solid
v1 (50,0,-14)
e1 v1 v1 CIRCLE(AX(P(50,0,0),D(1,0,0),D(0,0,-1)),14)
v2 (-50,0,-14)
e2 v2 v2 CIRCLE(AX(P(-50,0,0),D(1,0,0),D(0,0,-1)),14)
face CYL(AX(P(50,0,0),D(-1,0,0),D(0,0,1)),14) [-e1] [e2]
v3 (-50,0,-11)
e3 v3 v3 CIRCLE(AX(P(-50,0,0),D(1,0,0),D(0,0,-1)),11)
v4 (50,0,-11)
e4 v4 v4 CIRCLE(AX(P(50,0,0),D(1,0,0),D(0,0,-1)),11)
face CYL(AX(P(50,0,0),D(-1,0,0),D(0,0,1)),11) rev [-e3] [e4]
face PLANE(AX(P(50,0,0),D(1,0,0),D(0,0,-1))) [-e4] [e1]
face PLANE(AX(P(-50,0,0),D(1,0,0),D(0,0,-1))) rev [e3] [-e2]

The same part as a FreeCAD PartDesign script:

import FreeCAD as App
import Part
import Sketcher

doc = App.newDocument("Part")
params = doc.addObject("Spreadsheet::Sheet", "Params")
for row, (alias, value) in enumerate([
    ("sketch1_diameter", "28 mm"),
    ("sketch1_diameter2", "22 mm"),
    ("pad1_length", "100 mm"),
], start=1):
    params.set(f"A{row}", alias)
    params.set(f"B{row}", "=" + value)
    params.setAlias(f"B{row}", alias)

body = doc.addObject("PartDesign::Body", "Body")

# Sketch on YZ plane
sketch1 = doc.addObject("Sketcher::SketchObject", "Sketch")
body.addObject(sketch1)
sketch1.AttachmentSupport = (doc.YZ_Plane, [""])
sketch1.MapMode = "FlatFace"
sketch1.addGeometry([
    Part.Circle(App.Vector(0, 0, 0), App.Vector(0, 0, 1), 14),
    Part.Circle(App.Vector(0, 0, 0), App.Vector(0, 0, 1), 11),
], False)
sketch1.addConstraint([
    Sketcher.Constraint("Coincident", 0, 3, -1, 1),
    Sketcher.Constraint("Coincident", 1, 3, -1, 1),
    Sketcher.Constraint("Diameter", 0, 28.0),
    Sketcher.Constraint("Diameter", 1, 22.0),
])
sketch1.setExpression("Constraints[2]", "Params.sketch1_diameter")
sketch1.setExpression("Constraints[3]", "Params.sketch1_diameter2")
pad1 = doc.addObject("PartDesign::Pad", "Pad")
body.addObject(pad1)
pad1.Profile = sketch1
pad1.setExpression("Length", "Params.pad1_length")
pad1.Midplane = True

doc.recompute()
